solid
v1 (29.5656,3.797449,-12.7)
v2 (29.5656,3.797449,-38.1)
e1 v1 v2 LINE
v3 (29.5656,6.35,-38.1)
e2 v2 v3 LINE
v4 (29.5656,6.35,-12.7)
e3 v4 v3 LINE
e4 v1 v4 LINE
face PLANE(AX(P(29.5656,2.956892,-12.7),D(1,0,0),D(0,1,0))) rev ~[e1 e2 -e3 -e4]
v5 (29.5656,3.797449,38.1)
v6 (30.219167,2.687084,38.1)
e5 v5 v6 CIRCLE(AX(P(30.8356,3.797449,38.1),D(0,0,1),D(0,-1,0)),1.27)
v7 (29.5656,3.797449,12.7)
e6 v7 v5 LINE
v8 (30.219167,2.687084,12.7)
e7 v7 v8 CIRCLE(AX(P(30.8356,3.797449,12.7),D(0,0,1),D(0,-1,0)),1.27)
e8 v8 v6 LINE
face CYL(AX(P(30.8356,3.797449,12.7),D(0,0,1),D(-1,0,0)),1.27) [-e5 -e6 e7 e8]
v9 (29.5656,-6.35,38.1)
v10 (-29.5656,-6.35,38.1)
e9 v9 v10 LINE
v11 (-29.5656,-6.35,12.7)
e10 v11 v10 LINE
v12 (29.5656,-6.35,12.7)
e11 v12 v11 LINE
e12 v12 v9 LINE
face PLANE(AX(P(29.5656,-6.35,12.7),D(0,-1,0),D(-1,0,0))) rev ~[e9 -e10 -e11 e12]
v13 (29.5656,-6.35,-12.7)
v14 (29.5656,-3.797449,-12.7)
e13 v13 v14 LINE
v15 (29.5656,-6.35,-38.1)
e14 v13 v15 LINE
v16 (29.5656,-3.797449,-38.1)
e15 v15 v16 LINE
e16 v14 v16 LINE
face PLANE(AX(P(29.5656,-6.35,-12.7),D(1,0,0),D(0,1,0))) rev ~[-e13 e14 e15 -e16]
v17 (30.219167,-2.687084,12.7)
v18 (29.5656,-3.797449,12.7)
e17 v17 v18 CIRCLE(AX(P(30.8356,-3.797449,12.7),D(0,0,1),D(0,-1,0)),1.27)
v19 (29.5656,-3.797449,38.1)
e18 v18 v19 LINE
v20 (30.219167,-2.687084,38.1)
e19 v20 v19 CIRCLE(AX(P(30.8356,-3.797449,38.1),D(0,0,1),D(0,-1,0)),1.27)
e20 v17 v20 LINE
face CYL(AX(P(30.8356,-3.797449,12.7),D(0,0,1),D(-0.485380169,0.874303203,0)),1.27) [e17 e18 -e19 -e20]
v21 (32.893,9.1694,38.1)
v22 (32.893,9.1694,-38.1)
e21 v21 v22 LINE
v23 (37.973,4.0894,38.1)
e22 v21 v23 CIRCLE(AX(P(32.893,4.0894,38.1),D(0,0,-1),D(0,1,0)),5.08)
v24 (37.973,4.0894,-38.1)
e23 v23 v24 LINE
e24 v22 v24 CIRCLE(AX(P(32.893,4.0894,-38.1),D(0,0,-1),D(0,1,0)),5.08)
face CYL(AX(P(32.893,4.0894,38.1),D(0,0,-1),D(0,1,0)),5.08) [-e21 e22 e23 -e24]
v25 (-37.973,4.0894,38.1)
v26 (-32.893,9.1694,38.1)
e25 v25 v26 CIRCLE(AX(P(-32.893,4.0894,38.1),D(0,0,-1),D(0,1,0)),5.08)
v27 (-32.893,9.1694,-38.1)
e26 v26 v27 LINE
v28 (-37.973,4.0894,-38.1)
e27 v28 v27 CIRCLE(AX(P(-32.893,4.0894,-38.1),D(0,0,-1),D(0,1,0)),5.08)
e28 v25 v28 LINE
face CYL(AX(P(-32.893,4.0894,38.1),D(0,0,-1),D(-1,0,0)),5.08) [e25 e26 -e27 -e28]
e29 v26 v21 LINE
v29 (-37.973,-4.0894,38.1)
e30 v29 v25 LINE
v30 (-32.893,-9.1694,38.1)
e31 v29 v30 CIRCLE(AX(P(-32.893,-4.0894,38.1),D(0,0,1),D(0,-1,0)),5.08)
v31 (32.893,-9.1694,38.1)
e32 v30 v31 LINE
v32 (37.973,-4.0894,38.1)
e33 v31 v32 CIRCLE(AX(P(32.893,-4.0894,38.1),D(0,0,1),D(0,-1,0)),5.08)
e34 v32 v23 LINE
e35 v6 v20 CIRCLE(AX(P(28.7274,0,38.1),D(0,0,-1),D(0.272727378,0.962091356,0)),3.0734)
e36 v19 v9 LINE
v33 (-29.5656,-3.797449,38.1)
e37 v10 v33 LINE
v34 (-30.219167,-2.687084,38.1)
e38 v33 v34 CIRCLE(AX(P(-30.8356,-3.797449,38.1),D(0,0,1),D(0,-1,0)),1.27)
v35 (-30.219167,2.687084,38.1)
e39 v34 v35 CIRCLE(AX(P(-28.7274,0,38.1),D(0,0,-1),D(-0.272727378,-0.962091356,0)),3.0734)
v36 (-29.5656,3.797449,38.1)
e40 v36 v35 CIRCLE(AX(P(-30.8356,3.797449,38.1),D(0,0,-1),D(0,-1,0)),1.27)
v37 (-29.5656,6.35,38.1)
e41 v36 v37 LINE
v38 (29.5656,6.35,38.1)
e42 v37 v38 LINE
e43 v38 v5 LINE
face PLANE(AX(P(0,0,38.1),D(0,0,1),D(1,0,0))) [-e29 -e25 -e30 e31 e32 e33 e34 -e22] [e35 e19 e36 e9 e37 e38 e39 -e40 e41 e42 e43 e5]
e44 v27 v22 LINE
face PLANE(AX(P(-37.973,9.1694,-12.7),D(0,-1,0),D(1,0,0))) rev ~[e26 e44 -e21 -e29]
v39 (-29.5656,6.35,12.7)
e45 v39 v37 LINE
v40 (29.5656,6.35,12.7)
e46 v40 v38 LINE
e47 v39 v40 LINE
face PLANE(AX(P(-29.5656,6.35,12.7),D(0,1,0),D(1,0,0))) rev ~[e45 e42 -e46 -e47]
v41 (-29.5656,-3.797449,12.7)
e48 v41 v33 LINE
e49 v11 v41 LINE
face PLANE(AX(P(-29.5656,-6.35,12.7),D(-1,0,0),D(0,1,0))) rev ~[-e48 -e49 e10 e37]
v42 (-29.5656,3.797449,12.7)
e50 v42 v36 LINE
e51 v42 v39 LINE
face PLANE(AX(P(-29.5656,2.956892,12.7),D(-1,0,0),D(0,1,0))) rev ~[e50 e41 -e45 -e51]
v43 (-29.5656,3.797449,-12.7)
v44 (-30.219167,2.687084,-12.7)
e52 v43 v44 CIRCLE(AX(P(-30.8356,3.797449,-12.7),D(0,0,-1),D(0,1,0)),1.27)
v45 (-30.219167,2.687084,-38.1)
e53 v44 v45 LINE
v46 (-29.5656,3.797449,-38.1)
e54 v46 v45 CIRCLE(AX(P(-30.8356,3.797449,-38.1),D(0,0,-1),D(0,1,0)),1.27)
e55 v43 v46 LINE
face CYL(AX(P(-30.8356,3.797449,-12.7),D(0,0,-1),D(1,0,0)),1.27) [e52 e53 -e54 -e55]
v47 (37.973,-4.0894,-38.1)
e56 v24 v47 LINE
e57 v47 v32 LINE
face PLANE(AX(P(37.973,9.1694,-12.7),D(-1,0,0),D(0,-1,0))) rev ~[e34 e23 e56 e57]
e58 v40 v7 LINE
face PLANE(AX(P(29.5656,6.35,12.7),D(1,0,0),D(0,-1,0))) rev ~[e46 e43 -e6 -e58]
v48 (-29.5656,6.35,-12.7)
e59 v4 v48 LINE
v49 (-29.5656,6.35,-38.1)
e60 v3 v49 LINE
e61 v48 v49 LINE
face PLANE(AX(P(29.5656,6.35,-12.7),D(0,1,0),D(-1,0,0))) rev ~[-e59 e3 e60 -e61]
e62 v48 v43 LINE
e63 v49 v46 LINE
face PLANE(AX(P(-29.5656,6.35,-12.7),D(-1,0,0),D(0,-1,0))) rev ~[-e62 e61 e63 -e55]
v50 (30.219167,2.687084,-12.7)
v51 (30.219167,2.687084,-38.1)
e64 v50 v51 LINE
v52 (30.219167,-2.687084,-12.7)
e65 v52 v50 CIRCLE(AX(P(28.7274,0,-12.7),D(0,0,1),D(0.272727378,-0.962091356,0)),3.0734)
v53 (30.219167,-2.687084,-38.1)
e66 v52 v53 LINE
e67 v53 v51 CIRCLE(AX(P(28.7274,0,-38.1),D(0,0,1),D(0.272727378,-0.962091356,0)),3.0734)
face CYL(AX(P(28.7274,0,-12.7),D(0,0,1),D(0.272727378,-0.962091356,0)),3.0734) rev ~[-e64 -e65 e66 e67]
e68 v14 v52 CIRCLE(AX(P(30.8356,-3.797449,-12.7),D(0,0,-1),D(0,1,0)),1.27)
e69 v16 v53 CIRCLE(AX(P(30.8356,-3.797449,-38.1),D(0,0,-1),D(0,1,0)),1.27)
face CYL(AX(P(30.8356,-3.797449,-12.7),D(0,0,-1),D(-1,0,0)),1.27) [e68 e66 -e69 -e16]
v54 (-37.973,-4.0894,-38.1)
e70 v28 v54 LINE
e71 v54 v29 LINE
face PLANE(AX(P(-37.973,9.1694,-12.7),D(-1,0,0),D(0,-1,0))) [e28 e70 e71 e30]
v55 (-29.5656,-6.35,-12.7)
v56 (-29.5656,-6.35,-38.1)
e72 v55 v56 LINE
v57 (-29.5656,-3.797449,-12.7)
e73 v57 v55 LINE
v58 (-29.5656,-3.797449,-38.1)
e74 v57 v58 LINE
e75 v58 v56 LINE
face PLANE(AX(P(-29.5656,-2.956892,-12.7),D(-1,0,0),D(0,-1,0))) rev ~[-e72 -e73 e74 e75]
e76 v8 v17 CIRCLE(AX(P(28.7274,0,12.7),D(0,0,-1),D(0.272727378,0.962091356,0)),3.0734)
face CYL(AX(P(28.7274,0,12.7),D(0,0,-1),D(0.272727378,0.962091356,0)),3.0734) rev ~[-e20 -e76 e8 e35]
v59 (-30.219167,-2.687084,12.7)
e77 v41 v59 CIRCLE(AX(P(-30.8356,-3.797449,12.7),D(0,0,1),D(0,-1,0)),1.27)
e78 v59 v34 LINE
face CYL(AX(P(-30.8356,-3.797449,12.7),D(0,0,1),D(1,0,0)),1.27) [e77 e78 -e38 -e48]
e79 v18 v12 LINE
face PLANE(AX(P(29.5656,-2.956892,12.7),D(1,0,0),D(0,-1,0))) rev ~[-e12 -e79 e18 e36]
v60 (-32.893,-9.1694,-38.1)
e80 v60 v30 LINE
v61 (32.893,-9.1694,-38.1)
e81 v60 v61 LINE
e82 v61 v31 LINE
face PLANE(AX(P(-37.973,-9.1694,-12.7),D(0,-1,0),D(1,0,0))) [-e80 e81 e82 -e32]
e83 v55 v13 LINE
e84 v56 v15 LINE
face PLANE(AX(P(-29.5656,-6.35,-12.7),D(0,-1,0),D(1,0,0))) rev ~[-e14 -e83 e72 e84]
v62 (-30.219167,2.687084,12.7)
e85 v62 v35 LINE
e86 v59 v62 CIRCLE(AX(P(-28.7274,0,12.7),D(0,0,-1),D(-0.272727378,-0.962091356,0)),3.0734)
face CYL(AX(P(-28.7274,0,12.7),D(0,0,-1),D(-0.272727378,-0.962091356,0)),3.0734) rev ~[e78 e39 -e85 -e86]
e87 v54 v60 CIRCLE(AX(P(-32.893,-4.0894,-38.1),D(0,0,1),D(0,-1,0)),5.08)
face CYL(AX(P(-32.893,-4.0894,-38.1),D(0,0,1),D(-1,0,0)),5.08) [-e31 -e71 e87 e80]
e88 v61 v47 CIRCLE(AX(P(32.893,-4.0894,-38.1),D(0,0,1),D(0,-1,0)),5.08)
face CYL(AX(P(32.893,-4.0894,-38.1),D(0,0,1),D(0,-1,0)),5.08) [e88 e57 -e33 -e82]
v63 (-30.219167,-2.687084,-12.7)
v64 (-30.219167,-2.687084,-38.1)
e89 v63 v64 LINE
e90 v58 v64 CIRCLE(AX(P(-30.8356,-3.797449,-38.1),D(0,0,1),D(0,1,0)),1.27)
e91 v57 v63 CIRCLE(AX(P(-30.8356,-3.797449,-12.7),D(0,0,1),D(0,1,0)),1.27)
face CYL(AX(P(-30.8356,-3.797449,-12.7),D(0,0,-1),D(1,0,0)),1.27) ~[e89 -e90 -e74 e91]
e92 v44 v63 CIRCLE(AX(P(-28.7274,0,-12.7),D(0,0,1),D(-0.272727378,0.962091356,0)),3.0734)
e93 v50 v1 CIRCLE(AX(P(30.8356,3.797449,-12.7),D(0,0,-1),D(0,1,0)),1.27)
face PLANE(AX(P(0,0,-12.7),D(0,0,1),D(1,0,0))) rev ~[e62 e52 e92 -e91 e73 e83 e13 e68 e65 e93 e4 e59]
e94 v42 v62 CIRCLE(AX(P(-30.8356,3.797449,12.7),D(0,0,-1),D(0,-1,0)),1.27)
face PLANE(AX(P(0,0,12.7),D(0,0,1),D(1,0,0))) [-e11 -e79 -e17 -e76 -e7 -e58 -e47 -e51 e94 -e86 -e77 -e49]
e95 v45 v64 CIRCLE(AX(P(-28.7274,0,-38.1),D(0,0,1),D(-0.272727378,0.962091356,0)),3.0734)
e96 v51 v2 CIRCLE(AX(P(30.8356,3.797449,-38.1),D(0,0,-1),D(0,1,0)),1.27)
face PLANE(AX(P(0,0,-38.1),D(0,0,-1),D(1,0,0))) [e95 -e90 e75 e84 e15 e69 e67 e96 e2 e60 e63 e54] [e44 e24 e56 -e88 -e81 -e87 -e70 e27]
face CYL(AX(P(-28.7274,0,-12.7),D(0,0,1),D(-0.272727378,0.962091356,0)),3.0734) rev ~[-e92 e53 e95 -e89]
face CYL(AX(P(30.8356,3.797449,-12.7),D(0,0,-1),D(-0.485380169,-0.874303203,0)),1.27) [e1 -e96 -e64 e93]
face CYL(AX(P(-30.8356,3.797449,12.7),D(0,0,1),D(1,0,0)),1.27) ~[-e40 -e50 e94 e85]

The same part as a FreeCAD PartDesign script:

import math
import FreeCAD as App
import Part
import Sketcher
Q = App.Units.Quantity


def edges_at(feature, points):
    """Names of the edges that pass closest to the given points."""
    edges = feature.Shape.Edges
    near = lambda p: min(range(len(edges)), key=lambda i: edges[i].distToShape(Part.Vertex(*p))[0])
    return sorted({f"Edge{near(p) + 1}" for p in points})

doc = App.newDocument("Part")
body = doc.addObject("PartDesign::Body", "Body")

sketch1 = body.newObject("Sketcher::SketchObject", "Sketch")
sketch1.AttachmentSupport = (doc.getObject("XY_Plane"), [""])
sketch1.MapMode = "FlatFace"
sketch1.addGeometry([
    Part.LineSegment(App.Vector(-37.973, 9.1694, 0), App.Vector(-37.973, -9.1694, 0)),
    Part.LineSegment(App.Vector(-37.973, -9.1694, 0), App.Vector(37.973, -9.1694, 0)),
    Part.LineSegment(App.Vector(37.973, -9.1694, 0), App.Vector(37.973, 9.1694, 0)),
    Part.LineSegment(App.Vector(37.973, 9.1694, 0), App.Vector(-37.973, 9.1694, 0)),
], False)
sketch1.addConstraint([
    Sketcher.Constraint("Coincident", 0, 2, 1, 1),
    Sketcher.Constraint("Coincident", 1, 2, 2, 1),
    Sketcher.Constraint("Coincident", 2, 2, 3, 1),
    Sketcher.Constraint("Coincident", 3, 2, 0, 1),
    Sketcher.Constraint("Vertical", 0),
    Sketcher.Constraint("Horizontal", 1),
    Sketcher.Constraint("Vertical", 2),
    Sketcher.Constraint("Horizontal", 3),
    Sketcher.Constraint("Symmetric", 0, 2, 2, 2, -1, 1),
    Sketcher.Constraint("DistanceX", 1, 1, 1, 2, Q("2.99 in")),
    Sketcher.Constraint("DistanceY", 0, 2, 0, 1, Q("0.722 in")),
])
pad1 = body.newObject("PartDesign::Pad", "Pad")
pad1.Profile = sketch1
pad1.Length = Q("1 in")
pad1.Midplane = True

sketch2 = body.newObject("Sketcher::SketchObject", "Sketch001")
sketch2.AttachmentSupport = (doc.getObject("XY_Plane"), [""])
sketch2.MapMode = "FlatFace"
sketch2.AttachmentOffset = App.Placement(App.Vector(0, 0, 0.5 * 25.4), App.Rotation())
sketch2.addGeometry([
    Part.LineSegment(App.Vector(-37.973, 9.1694, 0), App.Vector(-37.973, -9.1694, 0)),
    Part.LineSegment(App.Vector(-37.973, -9.1694, 0), App.Vector(37.973, -9.1694, 0)),
    Part.LineSegment(App.Vector(37.973, -9.1694, 0), App.Vector(37.973, 9.1694, 0)),
    Part.LineSegment(App.Vector(37.973, 9.1694, 0), App.Vector(-37.973, 9.1694, 0)),
    Part.ArcOfCircle(Part.Circle(App.Vector(-28.7274, 0, 0), App.Vector(0, 0, 1), 3.0734), math.radians(105.826626), math.radians(254.173374)),
    Part.LineSegment(App.Vector(-29.5656, 2.956892, 0), App.Vector(-29.5656, 6.35, 0)),
    Part.LineSegment(App.Vector(-29.5656, 6.35, 0), App.Vector(29.5656, 6.35, 0)),
    Part.LineSegment(App.Vector(29.5656, 6.35, 0), App.Vector(29.5656, 2.956892, 0)),
    Part.ArcOfCircle(Part.Circle(App.Vector(28.7274, 0, 0), App.Vector(0, 0, 1), 3.0734), math.radians(-74.173374), math.radians(74.173374)),
    Part.LineSegment(App.Vector(29.5656, -2.956892, 0), App.Vector(29.5656, -6.35, 0)),
    Part.LineSegment(App.Vector(29.5656, -6.35, 0), App.Vector(-29.5656, -6.35, 0)),
    Part.LineSegment(App.Vector(-29.5656, -6.35, 0), App.Vector(-29.5656, -2.956892, 0)),
], False)
sketch2.addConstraint([
    Sketcher.Constraint("Coincident", 0, 2, 1, 1),
    Sketcher.Constraint("Coincident", 1, 2, 2, 1),
    Sketcher.Constraint("Coincident", 2, 2, 3, 1),
    Sketcher.Constraint("Coincident", 3, 2, 0, 1),
    Sketcher.Constraint("Coincident", 4, 1, 5, 1),
    Sketcher.Constraint("Coincident", 5, 2, 6, 1),
    Sketcher.Constraint("Coincident", 6, 2, 7, 1),
    Sketcher.Constraint("Coincident", 7, 2, 8, 2),
    Sketcher.Constraint("Coincident", 8, 1, 9, 1),
    Sketcher.Constraint("Coincident", 9, 2, 10, 1),
    Sketcher.Constraint("Coincident", 10, 2, 11, 1),
    Sketcher.Constraint("Coincident", 11, 2, 4, 2),
    Sketcher.Constraint("Vertical", 0),
    Sketcher.Constraint("Horizontal", 1),
    Sketcher.Constraint("Vertical", 2),
    Sketcher.Constraint("Horizontal", 3),
    Sketcher.Constraint("Vertical", 5),
    Sketcher.Constraint("Horizontal", 6),
    Sketcher.Constraint("Vertical", 7),
    Sketcher.Constraint("Vertical", 9),
    Sketcher.Constraint("Horizontal", 10),
    Sketcher.Constraint("Vertical", 11),
    Sketcher.Constraint("Equal", 4, 8),
    Sketcher.Constraint("Symmetric", 4, 3, 8, 3, -1, 1),
    Sketcher.Constraint("Symmetric", 0, 2, 2, 2, -1, 1),
    Sketcher.Constraint("Symmetric", 5, 2, 9, 2, -1, 1),
    Sketcher.Constraint("Symmetric", 4, 1, 7, 2, -2),
    Sketcher.Constraint("Horizontal", 8, 1, 11, 2),
    Sketcher.Constraint("Radius", 4, Q("0.121 in")),
    Sketcher.Constraint("DistanceX", 1, 1, 1, 2, Q("2.99 in")),
    Sketcher.Constraint("DistanceY", 9, 2, 6, 2, Q("0.5 in")),
    Sketcher.Constraint("DistanceX", 6, 1, 6, 2, Q("2.328 in")),
    Sketcher.Constraint("DistanceY", 0, 2, 0, 1, Q("0.722 in")),
    Sketcher.Constraint("DistanceX", 4, 3, -1, 1, Q("1.131 in")),
])
pad2 = body.newObject("PartDesign::Pad", "Pad001")
pad2.Profile = sketch2
pad2.Length = Q("1 in")

sketch3 = body.newObject("Sketcher::SketchObject", "Sketch002")
sketch3.AttachmentSupport = (doc.getObject("XY_Plane"), [""])
sketch3.MapMode = "FlatFace"
sketch3.AttachmentOffset = App.Placement(App.Vector(0, 0, -0.5 * 25.4), App.Rotation())
sketch3.addGeometry([
    Part.LineSegment(App.Vector(-37.973, -9.1694, 0), App.Vector(-37.973, 9.1694, 0)),
    Part.LineSegment(App.Vector(-37.973, 9.1694, 0), App.Vector(37.973, 9.1694, 0)),
    Part.LineSegment(App.Vector(37.973, 9.1694, 0), App.Vector(37.973, -9.1694, 0)),
    Part.LineSegment(App.Vector(37.973, -9.1694, 0), App.Vector(-37.973, -9.1694, 0)),
    Part.ArcOfCircle(Part.Circle(App.Vector(-28.7274, 0, 0), App.Vector(0, 0, 1), 3.0734), math.radians(105.826626), math.radians(254.173374)),
    Part.LineSegment(App.Vector(-29.5656, -2.956892, 0), App.Vector(-29.5656, -6.35, 0)),
    Part.LineSegment(App.Vector(-29.5656, -6.35, 0), App.Vector(29.5656, -6.35, 0)),
    Part.LineSegment(App.Vector(29.5656, -6.35, 0), App.Vector(29.5656, -2.956892, 0)),
    Part.ArcOfCircle(Part.Circle(App.Vector(28.7274, 0, 0), App.Vector(0, 0, 1), 3.0734), math.radians(-74.173374), math.radians(74.173374)),
    Part.LineSegment(App.Vector(29.5656, 2.956892, 0), App.Vector(29.5656, 6.35, 0)),
    Part.LineSegment(App.Vector(29.5656, 6.35, 0), App.Vector(-29.5656, 6.35, 0)),
    Part.LineSegment(App.Vector(-29.5656, 6.35, 0), App.Vector(-29.5656, 2.956892, 0)),
], False)
sketch3.addConstraint([
    Sketcher.Constraint("Coincident", 0, 2, 1, 1),
    Sketcher.Constraint("Coincident", 1, 2, 2, 1),
    Sketcher.Constraint("Coincident", 2, 2, 3, 1),
    Sketcher.Constraint("Coincident", 3, 2, 0, 1),
    Sketcher.Constraint("Coincident", 4, 2, 5, 1),
    Sketcher.Constraint("Coincident", 5, 2, 6, 1),
    Sketcher.Constraint("Coincident", 6, 2, 7, 1),
    Sketcher.Constraint("Coincident", 7, 2, 8, 1),
    Sketcher.Constraint("Coincident", 8, 2, 9, 1),
    Sketcher.Constraint("Coincident", 9, 2, 10, 1),
    Sketcher.Constraint("Coincident", 10, 2, 11, 1),
    Sketcher.Constraint("Coincident", 11, 2, 4, 1),
    Sketcher.Constraint("Vertical", 0),
    Sketcher.Constraint("Horizontal", 1),
    Sketcher.Constraint("Vertical", 2),
    Sketcher.Constraint("Horizontal", 3),
    Sketcher.Constraint("Vertical", 5),
    Sketcher.Constraint("Horizontal", 6),
    Sketcher.Constraint("Vertical", 7),
    Sketcher.Constraint("Vertical", 9),
    Sketcher.Constraint("Horizontal", 10),
    Sketcher.Constraint("Vertical", 11),
    Sketcher.Constraint("Equal", 4, 8),
    Sketcher.Constraint("Symmetric", 4, 3, 8, 3, -1, 1),
    Sketcher.Constraint("Symmetric", 0, 2, 2, 2, -1, 1),
    Sketcher.Constraint("Symmetric", 5, 2, 9, 2, -1, 1),
    Sketcher.Constraint("Symmetric", 4, 2, 7, 2, -2),
    Sketcher.Constraint("Horizontal", 8, 2, 11, 2),
    Sketcher.Constraint("Radius", 4, Q("0.121 in")),
    Sketcher.Constraint("DistanceX", 1, 1, 1, 2, Q("2.99 in")),
    Sketcher.Constraint("DistanceY", 6, 2, 9, 2, Q("0.5 in")),
    Sketcher.Constraint("DistanceX", 6, 1, 6, 2, Q("2.328 in")),
    Sketcher.Constraint("DistanceY", 0, 1, 0, 2, Q("0.722 in")),
    Sketcher.Constraint("DistanceX", 4, 3, -1, 1, Q("1.131 in")),
])
pad3 = body.newObject("PartDesign::Pad", "Pad002")
pad3.Profile = sketch3
pad3.Length = Q("1 in")
pad3.Reversed = True
doc.recompute()

fillet = body.newObject("PartDesign::Fillet", "Fillet")
fillet.Base = (pad3, edges_at(pad3, [
    (-29.566, 2.957, 25.4),
    (-29.566, -2.957, 25.4),
    (29.566, -2.957, 25.4),
    (29.566, 2.957, 25.4),
    (-29.566, -2.957, -25.4),
    (-29.566, 2.957, -25.4),
    (29.566, 2.957, -25.4),
    (29.566, -2.957, -25.4),
]))
fillet.Radius = Q("0.05 in")
doc.recompute()

fillet2 = body.newObject("PartDesign::Fillet", "Fillet001")
fillet2.Base = (fillet, edges_at(fillet, [
    (37.973, -9.169, 0),
    (37.973, 9.169, 0),
    (-37.973, -9.169, 0),
    (-37.973, 9.169, 0),
]))
fillet2.Radius = Q("0.2 in")

doc.recompute()
